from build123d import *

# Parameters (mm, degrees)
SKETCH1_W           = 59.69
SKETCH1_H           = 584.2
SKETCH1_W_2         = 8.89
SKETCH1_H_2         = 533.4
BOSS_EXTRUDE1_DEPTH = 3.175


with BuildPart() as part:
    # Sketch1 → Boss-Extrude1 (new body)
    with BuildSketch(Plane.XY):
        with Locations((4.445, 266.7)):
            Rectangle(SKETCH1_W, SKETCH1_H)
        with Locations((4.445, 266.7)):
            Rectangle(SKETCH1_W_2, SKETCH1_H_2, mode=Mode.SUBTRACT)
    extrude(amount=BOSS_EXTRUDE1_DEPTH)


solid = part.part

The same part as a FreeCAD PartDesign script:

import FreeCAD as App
import Part
import Sketcher
Q = App.Units.Quantity

doc = App.newDocument("Part")
body = doc.addObject("PartDesign::Body", "Body")

# Sketch on XY plane
sketch1 = body.newObject("Sketcher::SketchObject", "Sketch")
sketch1.AttachmentSupport = (doc.getObject("XY_Plane"), [""])
sketch1.MapMode = "FlatFace"
sketch1.addGeometry([
    Part.LineSegment(App.Vector(-25, 559, 0), App.Vector(-25, -25, 0)),  # 0
    Part.LineSegment(App.Vector(-25, -25, 0), App.Vector(34, -25, 0)),  # 1
    Part.LineSegment(App.Vector(34, -25, 0), App.Vector(34, 559, 0)),  # 2
    Part.LineSegment(App.Vector(34, 559, 0), App.Vector(-25, 559, 0)),  # 3
    Part.LineSegment(App.Vector(9, 0, 0), App.Vector(0, 0, 0)),  # 4
    Part.LineSegment(App.Vector(0, 0, 0), App.Vector(0, 533, 0)),  # 5
    Part.LineSegment(App.Vector(0, 533, 0), App.Vector(9, 533, 0)),  # 6
    Part.LineSegment(App.Vector(9, 533, 0), App.Vector(9, 0, 0)),  # 7
], False)
sketch1.addConstraint([
    Sketcher.Constraint("Coincident", 0, 2, 1, 1),
    Sketcher.Constraint("Coincident", 1, 2, 2, 1),
    Sketcher.Constraint("Coincident", 2, 2, 3, 1),
    Sketcher.Constraint("Coincident", 3, 2, 0, 1),
    Sketcher.Constraint("Coincident", 4, 2, 5, 1),
    Sketcher.Constraint("Coincident", 5, 2, 6, 1),
    Sketcher.Constraint("Coincident", 6, 2, 7, 1),
    Sketcher.Constraint("Coincident", 7, 2, 4, 1),
    Sketcher.Constraint("Vertical", 0),
    Sketcher.Constraint("Horizontal", 1),
    Sketcher.Constraint("Vertical", 2),
    Sketcher.Constraint("Horizontal", 3),
    Sketcher.Constraint("Horizontal", 4),
    Sketcher.Constraint("Vertical", 5),
    Sketcher.Constraint("Horizontal", 6),
    Sketcher.Constraint("Vertical", 7),
    Sketcher.Constraint("Coincident", 4, 2, -1, 1),
    Sketcher.Constraint("DistanceY", 0, 2, 0, 1, Q("23 in")),
    Sketcher.Constraint("DistanceY", 5, 1, 5, 2, Q("21 in")),
    Sketcher.Constraint("DistanceX", 0, 2, -1, 1, Q("1 in")),
    Sketcher.Constraint("DistanceY", 0, 2, -1, 1, Q("1 in")),
    Sketcher.Constraint("DistanceX", 6, 2, 2, 2, Q("1 in")),
    Sketcher.Constraint("DistanceX", 1, 1, 1, 2, Q("2.35 in")),
])
pad1 = body.newObject("PartDesign::Pad", "Pad")
pad1.Profile = sketch1
pad1.Length = Q("0.125 in")

doc.recompute()
